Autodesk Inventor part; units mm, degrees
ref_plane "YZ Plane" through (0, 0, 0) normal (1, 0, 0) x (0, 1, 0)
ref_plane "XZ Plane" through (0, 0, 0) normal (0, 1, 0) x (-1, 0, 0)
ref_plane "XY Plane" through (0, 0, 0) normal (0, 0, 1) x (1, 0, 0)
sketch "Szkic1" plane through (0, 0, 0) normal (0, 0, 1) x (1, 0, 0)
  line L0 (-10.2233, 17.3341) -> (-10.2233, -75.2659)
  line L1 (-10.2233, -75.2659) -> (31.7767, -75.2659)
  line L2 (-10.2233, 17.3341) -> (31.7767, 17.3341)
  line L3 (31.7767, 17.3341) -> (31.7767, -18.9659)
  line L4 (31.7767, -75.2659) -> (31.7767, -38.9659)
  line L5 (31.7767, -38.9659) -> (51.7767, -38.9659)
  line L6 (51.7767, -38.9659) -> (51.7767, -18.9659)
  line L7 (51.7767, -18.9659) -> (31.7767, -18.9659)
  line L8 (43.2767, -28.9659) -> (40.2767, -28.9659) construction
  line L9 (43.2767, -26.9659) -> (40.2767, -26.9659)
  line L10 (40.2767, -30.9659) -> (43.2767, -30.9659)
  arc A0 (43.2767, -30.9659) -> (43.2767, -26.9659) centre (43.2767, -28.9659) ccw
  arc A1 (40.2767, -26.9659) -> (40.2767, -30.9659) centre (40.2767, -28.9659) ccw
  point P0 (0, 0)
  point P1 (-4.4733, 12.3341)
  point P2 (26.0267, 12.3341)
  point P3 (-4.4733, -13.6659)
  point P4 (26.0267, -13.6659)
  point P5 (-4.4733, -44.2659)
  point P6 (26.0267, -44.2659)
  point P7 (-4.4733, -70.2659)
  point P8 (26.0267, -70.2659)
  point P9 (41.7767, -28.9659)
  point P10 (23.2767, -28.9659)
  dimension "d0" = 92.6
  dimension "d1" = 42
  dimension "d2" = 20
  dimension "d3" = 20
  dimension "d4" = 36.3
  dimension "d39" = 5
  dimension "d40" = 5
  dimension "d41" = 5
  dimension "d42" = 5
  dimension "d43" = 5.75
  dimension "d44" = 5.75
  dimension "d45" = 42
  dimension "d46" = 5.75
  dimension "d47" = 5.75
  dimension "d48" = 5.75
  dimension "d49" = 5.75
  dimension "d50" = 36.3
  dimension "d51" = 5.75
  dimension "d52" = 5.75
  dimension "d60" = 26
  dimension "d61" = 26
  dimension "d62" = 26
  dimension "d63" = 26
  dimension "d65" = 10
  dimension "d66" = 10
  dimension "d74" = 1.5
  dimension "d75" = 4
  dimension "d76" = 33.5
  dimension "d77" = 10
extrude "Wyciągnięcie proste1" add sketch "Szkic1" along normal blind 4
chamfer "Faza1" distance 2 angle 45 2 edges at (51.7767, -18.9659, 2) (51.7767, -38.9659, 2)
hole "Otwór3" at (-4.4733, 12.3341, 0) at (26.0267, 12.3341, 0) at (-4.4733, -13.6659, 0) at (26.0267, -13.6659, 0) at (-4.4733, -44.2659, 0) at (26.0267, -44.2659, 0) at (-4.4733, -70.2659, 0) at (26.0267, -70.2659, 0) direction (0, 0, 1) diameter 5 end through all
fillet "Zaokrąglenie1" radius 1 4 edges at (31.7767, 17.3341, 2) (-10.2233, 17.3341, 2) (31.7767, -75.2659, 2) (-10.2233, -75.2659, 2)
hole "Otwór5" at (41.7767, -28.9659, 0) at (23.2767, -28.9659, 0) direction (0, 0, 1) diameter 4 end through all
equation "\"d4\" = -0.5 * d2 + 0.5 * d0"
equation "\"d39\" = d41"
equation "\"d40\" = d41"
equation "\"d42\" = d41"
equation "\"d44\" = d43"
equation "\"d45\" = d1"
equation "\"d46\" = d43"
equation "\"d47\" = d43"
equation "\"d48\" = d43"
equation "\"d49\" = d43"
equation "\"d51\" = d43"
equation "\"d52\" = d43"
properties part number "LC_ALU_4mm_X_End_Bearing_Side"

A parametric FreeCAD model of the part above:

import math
import FreeCAD as App
import Part
import Sketcher
from FreeCAD import Vector
Q = App.Units.Quantity


def edges_at(feature, points):
    """Names of the edges that pass closest to the given points."""
    edges = feature.Shape.Edges
    near = lambda p: min(range(len(edges)), key=lambda i: edges[i].distToShape(Part.Vertex(*p))[0])
    return sorted({f"Edge{near(p) + 1}" for p in points})


def add_polygon(sketch, points):
    """Adds a closed chain of lines whose ends are joined by coincident constraints."""
    first, n = sketch.GeometryCount, len(points)
    for a, b in zip(points, points[1:] + points[:1]):
        sketch.addGeometry(Part.LineSegment(App.Vector(*a, 0), App.Vector(*b, 0)), False)
    for i in range(n):
        sketch.addConstraint(Sketcher.Constraint("Coincident", first + i, 2, first + (i + 1) % n, 1))

doc = App.newDocument("Part")
body = doc.addObject("PartDesign::Body", "Body")

# Sketch on XY plane
sketch1 = doc.addObject("Sketcher::SketchObject", "Sketch")
body.addObject(sketch1)
sketch1.AttachmentSupport = (doc.XY_Plane, [""])
sketch1.MapMode = "FlatFace"
add_polygon(sketch1, [(31.8, 17.3), (-10.2, 17.3), (-10.2, -75.3), (31.8, -75.3), (31.8, -39), (51.8, -39), (51.8, -19), (31.8, -19)])  # lines 0-7
sketch1.addGeometry(Part.LineSegment(Vector(40.3, -27, 0), Vector(43.3, -27, 0)), False)  # 8
sketch1.addGeometry(Part.ArcOfCircle(Part.Circle(Vector(43.3, -29, 0), Vector(0, 0, 1), 2), math.radians(-90), math.radians(90)), False)  # 9
sketch1.addGeometry(Part.LineSegment(Vector(43.3, -31, 0), Vector(40.3, -31, 0)), False)  # 10
sketch1.addGeometry(Part.ArcOfCircle(Part.Circle(Vector(40.3, -29, 0), Vector(0, 0, 1), 2), math.radians(90), math.radians(270)), False)  # 11
sketch1.addConstraint(Sketcher.Constraint("Tangent", 8, 2, 9, 2))
sketch1.addConstraint(Sketcher.Constraint("Tangent", 9, 1, 10, 1))
sketch1.addConstraint(Sketcher.Constraint("Tangent", 10, 2, 11, 2))
sketch1.addConstraint(Sketcher.Constraint("Tangent", 11, 1, 8, 1))
sketch1.addConstraint(Sketcher.Constraint("Horizontal", 0))
sketch1.addConstraint(Sketcher.Constraint("Vertical", 1))
sketch1.addConstraint(Sketcher.Constraint("Horizontal", 2))
sketch1.addConstraint(Sketcher.Constraint("Vertical", 3))
sketch1.addConstraint(Sketcher.Constraint("Horizontal", 4))
sketch1.addConstraint(Sketcher.Constraint("Vertical", 5))
sketch1.addConstraint(Sketcher.Constraint("Horizontal", 6))
sketch1.addConstraint(Sketcher.Constraint("Vertical", 7))
sketch1.addConstraint(Sketcher.Constraint("Horizontal", 8))
sketch1.addConstraint(Sketcher.Constraint("Horizontal", 10))
sketch1.addConstraint(Sketcher.Constraint("Vertical", 3, 2, 6, 2))
sketch1.addConstraint(Sketcher.Constraint("Equal", 6, 5))
sketch1.addConstraint(Sketcher.Constraint("Equal", 3, 7))
sketch1.addConstraint(Sketcher.Constraint("Radius", 9, Q("2 mm")))
sketch1.addConstraint(Sketcher.Constraint("DistanceX", 0, 2, 0, 1, Q("42 mm")))
sketch1.addConstraint(Sketcher.Constraint("DistanceX", 4, 1, 4, 2, Q("20 mm")))
sketch1.addConstraint(Sketcher.Constraint("DistanceY", 1, 2, 1, 1, Q("92.6 mm")))
sketch1.addConstraint(Sketcher.Constraint("DistanceY", 3, 2, 11, 3, Q("10 mm")))
sketch1.addConstraint(Sketcher.Constraint("DistanceX", 8, 1, 8, 2, Q("3 mm")))
sketch1.addConstraint(Sketcher.Constraint("DistanceX", 0, 2, 11, 3, Q("50.5 mm")))
sketch1.addConstraint(Sketcher.Constraint("DistanceY", 9, 3, -1, 1, Q("28.966 mm")))
sketch1.addConstraint(Sketcher.Constraint("DistanceX", -1, 1, 9, 3, Q("43.2767 mm")))
pad1 = doc.addObject("PartDesign::Pad", "Pad")
body.addObject(pad1)
pad1.Profile = sketch1
pad1.Length = 4
doc.recompute()

chamfer = doc.addObject("PartDesign::Chamfer", "Chamfer")
body.addObject(chamfer)
chamfer.Base = (pad1, edges_at(pad1, [(51.777, -18.966, 2), (51.777, -38.966, 2)]))
chamfer.Size = 2

# Sketch on XY plane
sketch2 = doc.addObject("Sketcher::SketchObject", "Sketch001")
body.addObject(sketch2)
sketch2.AttachmentSupport = (doc.XY_Plane, [""])
sketch2.MapMode = "FlatFace"
sketch2.addGeometry(Part.Circle(Vector(-4.5, 12.3, 0), Vector(0, 0, 1), 2.5), False)
sketch2.addGeometry(Part.Circle(Vector(26, 12.3, 0), Vector(0, 0, 1), 2.5), False)
sketch2.addGeometry(Part.Circle(Vector(-4.5, -13.7, 0), Vector(0, 0, 1), 2.5), False)
sketch2.addGeometry(Part.Circle(Vector(26, -13.7, 0), Vector(0, 0, 1), 2.5), False)
sketch2.addGeometry(Part.Circle(Vector(-4.5, -44.3, 0), Vector(0, 0, 1), 2.5), False)
sketch2.addGeometry(Part.Circle(Vector(26, -44.3, 0), Vector(0, 0, 1), 2.5), False)
sketch2.addGeometry(Part.Circle(Vector(-4.5, -70.3, 0), Vector(0, 0, 1), 2.5), False)
sketch2.addGeometry(Part.Circle(Vector(26, -70.3, 0), Vector(0, 0, 1), 2.5), False)
sketch2.addConstraint(Sketcher.Constraint("Equal", 0, 1))
sketch2.addConstraint(Sketcher.Constraint("Equal", 1, 2))
sketch2.addConstraint(Sketcher.Constraint("Equal", 2, 3))
sketch2.addConstraint(Sketcher.Constraint("Equal", 3, 4))
sketch2.addConstraint(Sketcher.Constraint("Equal", 4, 5))
sketch2.addConstraint(Sketcher.Constraint("Equal", 5, 6))
sketch2.addConstraint(Sketcher.Constraint("Equal", 6, 7))
sketch2.addConstraint(Sketcher.Constraint("Horizontal", 0, 3, 1, 3))
sketch2.addConstraint(Sketcher.Constraint("Horizontal", 2, 3, 3, 3))
sketch2.addConstraint(Sketcher.Constraint("Horizontal", 4, 3, 5, 3))
sketch2.addConstraint(Sketcher.Constraint("Horizontal", 6, 3, 7, 3))
sketch2.addConstraint(Sketcher.Constraint("Vertical", 0, 3, 2, 3))
sketch2.addConstraint(Sketcher.Constraint("Vertical", 1, 3, 3, 3))
sketch2.addConstraint(Sketcher.Constraint("Vertical", 2, 3, 4, 3))
sketch2.addConstraint(Sketcher.Constraint("Vertical", 3, 3, 5, 3))
sketch2.addConstraint(Sketcher.Constraint("Vertical", 4, 3, 6, 3))
sketch2.addConstraint(Sketcher.Constraint("Vertical", 5, 3, 7, 3))
sketch2.addConstraint(Sketcher.Constraint("Diameter", 0, Q("5 mm")))
sketch2.addConstraint(Sketcher.Constraint("DistanceY", 2, 3, 0, 3, Q("26 mm")))
sketch2.addConstraint(Sketcher.Constraint("DistanceY", 6, 3, 4, 3, Q("26 mm")))
sketch2.addConstraint(Sketcher.Constraint("DistanceX", 0, 3, 1, 3, Q("30.5 mm")))
sketch2.addConstraint(Sketcher.Constraint("DistanceY", 4, 3, 2, 3, Q("30.6 mm")))
sketch2.addConstraint(Sketcher.Constraint("DistanceY", -1, 1, 0, 3, Q("12.334 mm")))
sketch2.addConstraint(Sketcher.Constraint("DistanceX", 0, 3, -1, 1, Q("4.4733 mm")))
doc.recompute()
hole = doc.addObject("PartDesign::Hole", "Hole")
body.addObject(hole)
hole.Profile = sketch2
hole.ThreadType = "None"
hole.Diameter = 5
hole.DepthType = "ThroughAll"
hole.Reversed = True
doc.recompute()

fillet = doc.addObject("PartDesign::Fillet", "Fillet")
body.addObject(fillet)
fillet.Base = (hole, edges_at(hole, [
    (31.777, 17.334, 2),
    (-10.223, 17.334, 2),
    (31.777, -75.266, 2),
    (-10.223, -75.266, 2),
]))
fillet.Radius = 1

# Sketch on XY plane
sketch3 = doc.addObject("Sketcher::SketchObject", "Sketch002")
body.addObject(sketch3)
sketch3.AttachmentSupport = (doc.XY_Plane, [""])
sketch3.MapMode = "FlatFace"
sketch3.addGeometry(Part.Circle(Vector(41.8, -29, 0), Vector(0, 0, 1), 2), False)
sketch3.addGeometry(Part.Circle(Vector(23.3, -29, 0), Vector(0, 0, 1), 2), False)
sketch3.addConstraint(Sketcher.Constraint("Equal", 0, 1))
sketch3.addConstraint(Sketcher.Constraint("Horizontal", 0, 3, 1, 3))
sketch3.addConstraint(Sketcher.Constraint("Diameter", 0, Q("4 mm")))
sketch3.addConstraint(Sketcher.Constraint("DistanceX", 1, 3, 0, 3, Q("18.5 mm")))
sketch3.addConstraint(Sketcher.Constraint("DistanceY", 0, 3, -1, 1, Q("28.966 mm")))
sketch3.addConstraint(Sketcher.Constraint("DistanceX", -1, 1, 0, 3, Q("41.7767 mm")))
doc.recompute()
hole2 = doc.addObject("PartDesign::Hole", "Hole001")
body.addObject(hole2)
hole2.Profile = sketch3
hole2.ThreadType = "None"
hole2.Diameter = 4
hole2.DepthType = "ThroughAll"
hole2.Reversed = True

doc.recompute()
